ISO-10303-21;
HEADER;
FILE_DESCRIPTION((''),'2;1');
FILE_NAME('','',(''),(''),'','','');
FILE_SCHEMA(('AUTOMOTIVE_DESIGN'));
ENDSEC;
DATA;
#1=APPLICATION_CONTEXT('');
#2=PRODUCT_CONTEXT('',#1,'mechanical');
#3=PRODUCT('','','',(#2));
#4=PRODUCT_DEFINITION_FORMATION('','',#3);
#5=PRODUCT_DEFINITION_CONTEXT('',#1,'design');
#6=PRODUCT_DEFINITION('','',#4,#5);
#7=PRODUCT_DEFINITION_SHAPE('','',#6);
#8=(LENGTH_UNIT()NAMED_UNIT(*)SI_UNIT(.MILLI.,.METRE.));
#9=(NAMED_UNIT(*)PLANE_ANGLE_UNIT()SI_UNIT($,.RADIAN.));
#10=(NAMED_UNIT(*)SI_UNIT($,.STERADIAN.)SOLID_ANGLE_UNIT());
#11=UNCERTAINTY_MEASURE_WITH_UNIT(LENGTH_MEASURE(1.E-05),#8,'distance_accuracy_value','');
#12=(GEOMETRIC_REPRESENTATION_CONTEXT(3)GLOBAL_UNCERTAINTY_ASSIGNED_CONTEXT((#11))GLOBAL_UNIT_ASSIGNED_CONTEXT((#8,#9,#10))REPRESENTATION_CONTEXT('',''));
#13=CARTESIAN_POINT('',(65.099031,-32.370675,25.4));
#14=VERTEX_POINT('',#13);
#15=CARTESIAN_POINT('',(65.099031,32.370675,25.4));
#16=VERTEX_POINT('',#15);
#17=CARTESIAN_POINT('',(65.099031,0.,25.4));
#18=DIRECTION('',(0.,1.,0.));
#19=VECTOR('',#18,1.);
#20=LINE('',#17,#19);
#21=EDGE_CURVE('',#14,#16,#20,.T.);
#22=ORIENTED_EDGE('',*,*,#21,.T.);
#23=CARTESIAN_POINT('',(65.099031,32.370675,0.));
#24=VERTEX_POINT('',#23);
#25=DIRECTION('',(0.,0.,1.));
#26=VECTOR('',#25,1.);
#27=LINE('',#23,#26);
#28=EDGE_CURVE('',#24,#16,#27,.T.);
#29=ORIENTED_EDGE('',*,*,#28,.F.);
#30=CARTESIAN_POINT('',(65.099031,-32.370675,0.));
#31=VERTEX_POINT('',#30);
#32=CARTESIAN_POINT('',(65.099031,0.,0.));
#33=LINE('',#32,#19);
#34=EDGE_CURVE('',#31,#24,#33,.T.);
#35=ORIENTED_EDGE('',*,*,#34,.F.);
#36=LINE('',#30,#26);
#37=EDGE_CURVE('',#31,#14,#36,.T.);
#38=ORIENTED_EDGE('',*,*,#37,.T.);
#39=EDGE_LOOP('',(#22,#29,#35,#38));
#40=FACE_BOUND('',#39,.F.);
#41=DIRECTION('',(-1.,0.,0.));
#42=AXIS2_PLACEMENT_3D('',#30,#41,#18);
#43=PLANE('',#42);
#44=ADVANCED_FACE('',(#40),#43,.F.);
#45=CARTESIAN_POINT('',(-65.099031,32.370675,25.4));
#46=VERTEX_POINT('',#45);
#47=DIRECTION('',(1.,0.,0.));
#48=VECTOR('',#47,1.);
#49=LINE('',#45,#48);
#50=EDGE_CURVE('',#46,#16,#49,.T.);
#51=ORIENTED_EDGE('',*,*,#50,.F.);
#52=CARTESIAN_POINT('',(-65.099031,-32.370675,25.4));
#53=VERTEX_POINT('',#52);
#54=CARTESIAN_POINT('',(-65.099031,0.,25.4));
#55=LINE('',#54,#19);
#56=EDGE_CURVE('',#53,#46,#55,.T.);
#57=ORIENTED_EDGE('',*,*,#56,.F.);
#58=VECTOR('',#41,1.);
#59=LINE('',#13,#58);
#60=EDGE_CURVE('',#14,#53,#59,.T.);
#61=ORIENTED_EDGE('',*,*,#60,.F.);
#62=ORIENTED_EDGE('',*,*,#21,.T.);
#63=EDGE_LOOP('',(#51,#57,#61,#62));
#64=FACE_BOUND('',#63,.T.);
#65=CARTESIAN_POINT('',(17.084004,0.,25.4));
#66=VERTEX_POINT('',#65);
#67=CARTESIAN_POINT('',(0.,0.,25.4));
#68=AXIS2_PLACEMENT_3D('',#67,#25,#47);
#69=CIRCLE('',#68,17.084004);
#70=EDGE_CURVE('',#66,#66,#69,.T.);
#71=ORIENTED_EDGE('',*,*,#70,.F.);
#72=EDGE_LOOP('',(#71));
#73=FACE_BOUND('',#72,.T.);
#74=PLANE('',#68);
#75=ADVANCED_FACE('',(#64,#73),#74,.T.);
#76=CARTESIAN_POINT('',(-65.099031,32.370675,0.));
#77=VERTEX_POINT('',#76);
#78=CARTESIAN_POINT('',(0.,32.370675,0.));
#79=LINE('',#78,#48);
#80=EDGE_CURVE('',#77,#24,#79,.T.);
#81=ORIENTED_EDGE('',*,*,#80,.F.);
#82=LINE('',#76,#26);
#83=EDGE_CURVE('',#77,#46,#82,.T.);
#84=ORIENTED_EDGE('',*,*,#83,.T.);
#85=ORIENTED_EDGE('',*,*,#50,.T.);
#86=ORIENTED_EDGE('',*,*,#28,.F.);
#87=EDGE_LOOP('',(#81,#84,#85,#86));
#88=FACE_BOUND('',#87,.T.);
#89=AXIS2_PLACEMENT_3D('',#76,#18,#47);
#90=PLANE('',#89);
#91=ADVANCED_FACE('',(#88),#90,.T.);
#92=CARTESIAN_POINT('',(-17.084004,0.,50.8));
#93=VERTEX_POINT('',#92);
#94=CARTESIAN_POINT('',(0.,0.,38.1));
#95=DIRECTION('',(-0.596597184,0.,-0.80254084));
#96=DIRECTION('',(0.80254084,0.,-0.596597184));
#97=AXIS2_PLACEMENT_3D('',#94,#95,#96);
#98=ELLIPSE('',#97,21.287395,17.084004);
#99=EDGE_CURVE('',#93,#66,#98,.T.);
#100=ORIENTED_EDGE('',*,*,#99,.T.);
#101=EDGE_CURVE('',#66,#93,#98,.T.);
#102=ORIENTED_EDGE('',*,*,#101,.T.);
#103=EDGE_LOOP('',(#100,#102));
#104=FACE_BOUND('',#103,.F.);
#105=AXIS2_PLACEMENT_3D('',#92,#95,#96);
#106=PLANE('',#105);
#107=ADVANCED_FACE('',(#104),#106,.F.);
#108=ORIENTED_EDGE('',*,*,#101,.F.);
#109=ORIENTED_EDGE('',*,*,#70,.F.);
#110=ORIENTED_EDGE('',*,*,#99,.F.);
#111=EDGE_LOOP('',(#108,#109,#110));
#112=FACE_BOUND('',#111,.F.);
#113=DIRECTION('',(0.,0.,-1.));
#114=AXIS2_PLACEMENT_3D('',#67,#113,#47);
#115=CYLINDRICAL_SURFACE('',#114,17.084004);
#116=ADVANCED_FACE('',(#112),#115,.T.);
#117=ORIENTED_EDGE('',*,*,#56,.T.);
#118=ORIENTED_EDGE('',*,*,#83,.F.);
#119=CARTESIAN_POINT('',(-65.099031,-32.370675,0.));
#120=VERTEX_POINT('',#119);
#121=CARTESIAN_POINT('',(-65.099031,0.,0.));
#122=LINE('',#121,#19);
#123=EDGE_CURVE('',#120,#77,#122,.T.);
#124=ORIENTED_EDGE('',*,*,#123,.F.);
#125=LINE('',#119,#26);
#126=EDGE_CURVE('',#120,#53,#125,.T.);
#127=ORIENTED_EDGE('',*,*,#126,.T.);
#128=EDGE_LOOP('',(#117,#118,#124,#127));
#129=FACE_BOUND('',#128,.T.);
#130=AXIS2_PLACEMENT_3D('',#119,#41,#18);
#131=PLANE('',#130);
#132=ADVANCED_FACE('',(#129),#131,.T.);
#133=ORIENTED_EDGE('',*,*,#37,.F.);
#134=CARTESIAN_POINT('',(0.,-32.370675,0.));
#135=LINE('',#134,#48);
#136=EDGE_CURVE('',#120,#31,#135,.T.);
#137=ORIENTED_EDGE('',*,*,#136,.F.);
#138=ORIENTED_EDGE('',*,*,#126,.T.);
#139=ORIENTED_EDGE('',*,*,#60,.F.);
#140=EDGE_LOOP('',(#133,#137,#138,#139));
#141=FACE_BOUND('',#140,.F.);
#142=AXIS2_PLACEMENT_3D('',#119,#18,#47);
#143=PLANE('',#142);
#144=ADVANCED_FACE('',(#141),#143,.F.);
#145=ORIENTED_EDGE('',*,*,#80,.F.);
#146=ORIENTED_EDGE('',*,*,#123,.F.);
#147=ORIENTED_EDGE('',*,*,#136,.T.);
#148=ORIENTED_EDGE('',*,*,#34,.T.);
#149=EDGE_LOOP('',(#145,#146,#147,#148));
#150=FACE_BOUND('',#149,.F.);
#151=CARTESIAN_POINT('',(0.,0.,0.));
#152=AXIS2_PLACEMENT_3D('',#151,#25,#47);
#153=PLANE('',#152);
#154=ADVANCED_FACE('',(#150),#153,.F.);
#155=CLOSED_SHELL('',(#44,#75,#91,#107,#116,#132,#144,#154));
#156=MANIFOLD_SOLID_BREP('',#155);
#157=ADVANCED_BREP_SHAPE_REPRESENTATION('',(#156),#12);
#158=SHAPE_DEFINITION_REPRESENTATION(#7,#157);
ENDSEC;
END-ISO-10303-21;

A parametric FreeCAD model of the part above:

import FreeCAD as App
import Part
import Sketcher
from FreeCAD import Vector
Q = App.Units.Quantity


def add_polygon(sketch, points):
    """Adds a closed chain of lines whose ends are joined by coincident constraints."""
    first, n = sketch.GeometryCount, len(points)
    for a, b in zip(points, points[1:] + points[:1]):
        sketch.addGeometry(Part.LineSegment(App.Vector(*a, 0), App.Vector(*b, 0)), False)
    for i in range(n):
        sketch.addConstraint(Sketcher.Constraint("Coincident", first + i, 2, first + (i + 1) % n, 1))

doc = App.newDocument("Part")
params = doc.addObject("Spreadsheet::Sheet", "Params")
for row, (alias, value) in enumerate([
    ("pad1_length", "1 in"),
    ("pad2_length", "1 in"),
    ("sketch3_height", "1 in"),
    ("pocket1_length", "4.48 in"),
], start=1):
    params.set(f"A{row}", alias)
    params.set(f"B{row}", "=" + value)
    params.setAlias(f"B{row}", alias)

body = doc.addObject("PartDesign::Body", "Body")

sketch1 = body.newObject("Sketcher::SketchObject", "Sketch")
sketch1.AttachmentSupport = (doc.getObject("XY_Plane"), [""])
sketch1.MapMode = "FlatFace"
add_polygon(sketch1, [(-65, 32), (-65, -32), (65, -32), (65, 32)])
sketch1.addConstraint([
    Sketcher.Constraint("Vertical", 0),
    Sketcher.Constraint("Horizontal", 1),
    Sketcher.Constraint("Vertical", 2),
    Sketcher.Constraint("Horizontal", 3),
    Sketcher.Constraint("Symmetric", 0, 2, 2, 2, -1, 1),
    Sketcher.Constraint("DistanceX", 1, 1, 1, 2, Q("130.198062 mm")),
    Sketcher.Constraint("DistanceY", 0, 2, 0, 1, Q("64.74135 mm")),
])
pad1 = body.newObject("PartDesign::Pad", "Pad")
pad1.Profile = sketch1
pad1.setExpression("Length", "Params.pad1_length")

sketch2 = body.newObject("Sketcher::SketchObject", "Sketch001")
sketch2.AttachmentSupport = (doc.getObject("XY_Plane"), [""])
sketch2.MapMode = "FlatFace"
sketch2.AttachmentOffset = App.Placement(Vector(0, 0, 1 * 25.4), App.Rotation())
sketch2.addGeometry(Part.Circle(Vector(0, 0, 0), Vector(0, 0, 1), 17), False)
sketch2.addConstraint([
    Sketcher.Constraint("Coincident", 0, 3, -1, 1),
    Sketcher.Constraint("Diameter", 0, Q("34.168008 mm")),
])
pad2 = body.newObject("PartDesign::Pad", "Pad001")
pad2.Profile = sketch2
pad2.setExpression("Length", "Params.pad2_length")

sketch3 = body.newObject("Sketcher::SketchObject", "Sketch002")
sketch3.AttachmentSupport = (doc.getObject("XZ_Plane"), [""])
sketch3.MapMode = "FlatFace"
add_polygon(sketch3, [(17, 51), (-17, 51), (17, 25)])
sketch3.addConstraint([
    Sketcher.Constraint("Horizontal", 0),
    Sketcher.Constraint("Vertical", 2),
    Sketcher.Constraint("DistanceY", 2, 1, 2, 2, Q("1 in")),
    Sketcher.Constraint("DistanceY", -1, 1, 0, 2, Q("2 in")),
    Sketcher.Constraint("Distance", 1, Q("42.57479 mm")),
    Sketcher.Constraint("DistanceX", 0, 2, -1, 1, Q("17.084004 mm")),
])
sketch3.setExpression("Constraints[5]", "Params.sketch3_height")
pocket1 = body.newObject("PartDesign::Pocket", "Pocket")
pocket1.Profile = sketch3
pocket1.setExpression("Length", "Params.pocket1_length")
pocket1.Midplane = True

doc.recompute()
